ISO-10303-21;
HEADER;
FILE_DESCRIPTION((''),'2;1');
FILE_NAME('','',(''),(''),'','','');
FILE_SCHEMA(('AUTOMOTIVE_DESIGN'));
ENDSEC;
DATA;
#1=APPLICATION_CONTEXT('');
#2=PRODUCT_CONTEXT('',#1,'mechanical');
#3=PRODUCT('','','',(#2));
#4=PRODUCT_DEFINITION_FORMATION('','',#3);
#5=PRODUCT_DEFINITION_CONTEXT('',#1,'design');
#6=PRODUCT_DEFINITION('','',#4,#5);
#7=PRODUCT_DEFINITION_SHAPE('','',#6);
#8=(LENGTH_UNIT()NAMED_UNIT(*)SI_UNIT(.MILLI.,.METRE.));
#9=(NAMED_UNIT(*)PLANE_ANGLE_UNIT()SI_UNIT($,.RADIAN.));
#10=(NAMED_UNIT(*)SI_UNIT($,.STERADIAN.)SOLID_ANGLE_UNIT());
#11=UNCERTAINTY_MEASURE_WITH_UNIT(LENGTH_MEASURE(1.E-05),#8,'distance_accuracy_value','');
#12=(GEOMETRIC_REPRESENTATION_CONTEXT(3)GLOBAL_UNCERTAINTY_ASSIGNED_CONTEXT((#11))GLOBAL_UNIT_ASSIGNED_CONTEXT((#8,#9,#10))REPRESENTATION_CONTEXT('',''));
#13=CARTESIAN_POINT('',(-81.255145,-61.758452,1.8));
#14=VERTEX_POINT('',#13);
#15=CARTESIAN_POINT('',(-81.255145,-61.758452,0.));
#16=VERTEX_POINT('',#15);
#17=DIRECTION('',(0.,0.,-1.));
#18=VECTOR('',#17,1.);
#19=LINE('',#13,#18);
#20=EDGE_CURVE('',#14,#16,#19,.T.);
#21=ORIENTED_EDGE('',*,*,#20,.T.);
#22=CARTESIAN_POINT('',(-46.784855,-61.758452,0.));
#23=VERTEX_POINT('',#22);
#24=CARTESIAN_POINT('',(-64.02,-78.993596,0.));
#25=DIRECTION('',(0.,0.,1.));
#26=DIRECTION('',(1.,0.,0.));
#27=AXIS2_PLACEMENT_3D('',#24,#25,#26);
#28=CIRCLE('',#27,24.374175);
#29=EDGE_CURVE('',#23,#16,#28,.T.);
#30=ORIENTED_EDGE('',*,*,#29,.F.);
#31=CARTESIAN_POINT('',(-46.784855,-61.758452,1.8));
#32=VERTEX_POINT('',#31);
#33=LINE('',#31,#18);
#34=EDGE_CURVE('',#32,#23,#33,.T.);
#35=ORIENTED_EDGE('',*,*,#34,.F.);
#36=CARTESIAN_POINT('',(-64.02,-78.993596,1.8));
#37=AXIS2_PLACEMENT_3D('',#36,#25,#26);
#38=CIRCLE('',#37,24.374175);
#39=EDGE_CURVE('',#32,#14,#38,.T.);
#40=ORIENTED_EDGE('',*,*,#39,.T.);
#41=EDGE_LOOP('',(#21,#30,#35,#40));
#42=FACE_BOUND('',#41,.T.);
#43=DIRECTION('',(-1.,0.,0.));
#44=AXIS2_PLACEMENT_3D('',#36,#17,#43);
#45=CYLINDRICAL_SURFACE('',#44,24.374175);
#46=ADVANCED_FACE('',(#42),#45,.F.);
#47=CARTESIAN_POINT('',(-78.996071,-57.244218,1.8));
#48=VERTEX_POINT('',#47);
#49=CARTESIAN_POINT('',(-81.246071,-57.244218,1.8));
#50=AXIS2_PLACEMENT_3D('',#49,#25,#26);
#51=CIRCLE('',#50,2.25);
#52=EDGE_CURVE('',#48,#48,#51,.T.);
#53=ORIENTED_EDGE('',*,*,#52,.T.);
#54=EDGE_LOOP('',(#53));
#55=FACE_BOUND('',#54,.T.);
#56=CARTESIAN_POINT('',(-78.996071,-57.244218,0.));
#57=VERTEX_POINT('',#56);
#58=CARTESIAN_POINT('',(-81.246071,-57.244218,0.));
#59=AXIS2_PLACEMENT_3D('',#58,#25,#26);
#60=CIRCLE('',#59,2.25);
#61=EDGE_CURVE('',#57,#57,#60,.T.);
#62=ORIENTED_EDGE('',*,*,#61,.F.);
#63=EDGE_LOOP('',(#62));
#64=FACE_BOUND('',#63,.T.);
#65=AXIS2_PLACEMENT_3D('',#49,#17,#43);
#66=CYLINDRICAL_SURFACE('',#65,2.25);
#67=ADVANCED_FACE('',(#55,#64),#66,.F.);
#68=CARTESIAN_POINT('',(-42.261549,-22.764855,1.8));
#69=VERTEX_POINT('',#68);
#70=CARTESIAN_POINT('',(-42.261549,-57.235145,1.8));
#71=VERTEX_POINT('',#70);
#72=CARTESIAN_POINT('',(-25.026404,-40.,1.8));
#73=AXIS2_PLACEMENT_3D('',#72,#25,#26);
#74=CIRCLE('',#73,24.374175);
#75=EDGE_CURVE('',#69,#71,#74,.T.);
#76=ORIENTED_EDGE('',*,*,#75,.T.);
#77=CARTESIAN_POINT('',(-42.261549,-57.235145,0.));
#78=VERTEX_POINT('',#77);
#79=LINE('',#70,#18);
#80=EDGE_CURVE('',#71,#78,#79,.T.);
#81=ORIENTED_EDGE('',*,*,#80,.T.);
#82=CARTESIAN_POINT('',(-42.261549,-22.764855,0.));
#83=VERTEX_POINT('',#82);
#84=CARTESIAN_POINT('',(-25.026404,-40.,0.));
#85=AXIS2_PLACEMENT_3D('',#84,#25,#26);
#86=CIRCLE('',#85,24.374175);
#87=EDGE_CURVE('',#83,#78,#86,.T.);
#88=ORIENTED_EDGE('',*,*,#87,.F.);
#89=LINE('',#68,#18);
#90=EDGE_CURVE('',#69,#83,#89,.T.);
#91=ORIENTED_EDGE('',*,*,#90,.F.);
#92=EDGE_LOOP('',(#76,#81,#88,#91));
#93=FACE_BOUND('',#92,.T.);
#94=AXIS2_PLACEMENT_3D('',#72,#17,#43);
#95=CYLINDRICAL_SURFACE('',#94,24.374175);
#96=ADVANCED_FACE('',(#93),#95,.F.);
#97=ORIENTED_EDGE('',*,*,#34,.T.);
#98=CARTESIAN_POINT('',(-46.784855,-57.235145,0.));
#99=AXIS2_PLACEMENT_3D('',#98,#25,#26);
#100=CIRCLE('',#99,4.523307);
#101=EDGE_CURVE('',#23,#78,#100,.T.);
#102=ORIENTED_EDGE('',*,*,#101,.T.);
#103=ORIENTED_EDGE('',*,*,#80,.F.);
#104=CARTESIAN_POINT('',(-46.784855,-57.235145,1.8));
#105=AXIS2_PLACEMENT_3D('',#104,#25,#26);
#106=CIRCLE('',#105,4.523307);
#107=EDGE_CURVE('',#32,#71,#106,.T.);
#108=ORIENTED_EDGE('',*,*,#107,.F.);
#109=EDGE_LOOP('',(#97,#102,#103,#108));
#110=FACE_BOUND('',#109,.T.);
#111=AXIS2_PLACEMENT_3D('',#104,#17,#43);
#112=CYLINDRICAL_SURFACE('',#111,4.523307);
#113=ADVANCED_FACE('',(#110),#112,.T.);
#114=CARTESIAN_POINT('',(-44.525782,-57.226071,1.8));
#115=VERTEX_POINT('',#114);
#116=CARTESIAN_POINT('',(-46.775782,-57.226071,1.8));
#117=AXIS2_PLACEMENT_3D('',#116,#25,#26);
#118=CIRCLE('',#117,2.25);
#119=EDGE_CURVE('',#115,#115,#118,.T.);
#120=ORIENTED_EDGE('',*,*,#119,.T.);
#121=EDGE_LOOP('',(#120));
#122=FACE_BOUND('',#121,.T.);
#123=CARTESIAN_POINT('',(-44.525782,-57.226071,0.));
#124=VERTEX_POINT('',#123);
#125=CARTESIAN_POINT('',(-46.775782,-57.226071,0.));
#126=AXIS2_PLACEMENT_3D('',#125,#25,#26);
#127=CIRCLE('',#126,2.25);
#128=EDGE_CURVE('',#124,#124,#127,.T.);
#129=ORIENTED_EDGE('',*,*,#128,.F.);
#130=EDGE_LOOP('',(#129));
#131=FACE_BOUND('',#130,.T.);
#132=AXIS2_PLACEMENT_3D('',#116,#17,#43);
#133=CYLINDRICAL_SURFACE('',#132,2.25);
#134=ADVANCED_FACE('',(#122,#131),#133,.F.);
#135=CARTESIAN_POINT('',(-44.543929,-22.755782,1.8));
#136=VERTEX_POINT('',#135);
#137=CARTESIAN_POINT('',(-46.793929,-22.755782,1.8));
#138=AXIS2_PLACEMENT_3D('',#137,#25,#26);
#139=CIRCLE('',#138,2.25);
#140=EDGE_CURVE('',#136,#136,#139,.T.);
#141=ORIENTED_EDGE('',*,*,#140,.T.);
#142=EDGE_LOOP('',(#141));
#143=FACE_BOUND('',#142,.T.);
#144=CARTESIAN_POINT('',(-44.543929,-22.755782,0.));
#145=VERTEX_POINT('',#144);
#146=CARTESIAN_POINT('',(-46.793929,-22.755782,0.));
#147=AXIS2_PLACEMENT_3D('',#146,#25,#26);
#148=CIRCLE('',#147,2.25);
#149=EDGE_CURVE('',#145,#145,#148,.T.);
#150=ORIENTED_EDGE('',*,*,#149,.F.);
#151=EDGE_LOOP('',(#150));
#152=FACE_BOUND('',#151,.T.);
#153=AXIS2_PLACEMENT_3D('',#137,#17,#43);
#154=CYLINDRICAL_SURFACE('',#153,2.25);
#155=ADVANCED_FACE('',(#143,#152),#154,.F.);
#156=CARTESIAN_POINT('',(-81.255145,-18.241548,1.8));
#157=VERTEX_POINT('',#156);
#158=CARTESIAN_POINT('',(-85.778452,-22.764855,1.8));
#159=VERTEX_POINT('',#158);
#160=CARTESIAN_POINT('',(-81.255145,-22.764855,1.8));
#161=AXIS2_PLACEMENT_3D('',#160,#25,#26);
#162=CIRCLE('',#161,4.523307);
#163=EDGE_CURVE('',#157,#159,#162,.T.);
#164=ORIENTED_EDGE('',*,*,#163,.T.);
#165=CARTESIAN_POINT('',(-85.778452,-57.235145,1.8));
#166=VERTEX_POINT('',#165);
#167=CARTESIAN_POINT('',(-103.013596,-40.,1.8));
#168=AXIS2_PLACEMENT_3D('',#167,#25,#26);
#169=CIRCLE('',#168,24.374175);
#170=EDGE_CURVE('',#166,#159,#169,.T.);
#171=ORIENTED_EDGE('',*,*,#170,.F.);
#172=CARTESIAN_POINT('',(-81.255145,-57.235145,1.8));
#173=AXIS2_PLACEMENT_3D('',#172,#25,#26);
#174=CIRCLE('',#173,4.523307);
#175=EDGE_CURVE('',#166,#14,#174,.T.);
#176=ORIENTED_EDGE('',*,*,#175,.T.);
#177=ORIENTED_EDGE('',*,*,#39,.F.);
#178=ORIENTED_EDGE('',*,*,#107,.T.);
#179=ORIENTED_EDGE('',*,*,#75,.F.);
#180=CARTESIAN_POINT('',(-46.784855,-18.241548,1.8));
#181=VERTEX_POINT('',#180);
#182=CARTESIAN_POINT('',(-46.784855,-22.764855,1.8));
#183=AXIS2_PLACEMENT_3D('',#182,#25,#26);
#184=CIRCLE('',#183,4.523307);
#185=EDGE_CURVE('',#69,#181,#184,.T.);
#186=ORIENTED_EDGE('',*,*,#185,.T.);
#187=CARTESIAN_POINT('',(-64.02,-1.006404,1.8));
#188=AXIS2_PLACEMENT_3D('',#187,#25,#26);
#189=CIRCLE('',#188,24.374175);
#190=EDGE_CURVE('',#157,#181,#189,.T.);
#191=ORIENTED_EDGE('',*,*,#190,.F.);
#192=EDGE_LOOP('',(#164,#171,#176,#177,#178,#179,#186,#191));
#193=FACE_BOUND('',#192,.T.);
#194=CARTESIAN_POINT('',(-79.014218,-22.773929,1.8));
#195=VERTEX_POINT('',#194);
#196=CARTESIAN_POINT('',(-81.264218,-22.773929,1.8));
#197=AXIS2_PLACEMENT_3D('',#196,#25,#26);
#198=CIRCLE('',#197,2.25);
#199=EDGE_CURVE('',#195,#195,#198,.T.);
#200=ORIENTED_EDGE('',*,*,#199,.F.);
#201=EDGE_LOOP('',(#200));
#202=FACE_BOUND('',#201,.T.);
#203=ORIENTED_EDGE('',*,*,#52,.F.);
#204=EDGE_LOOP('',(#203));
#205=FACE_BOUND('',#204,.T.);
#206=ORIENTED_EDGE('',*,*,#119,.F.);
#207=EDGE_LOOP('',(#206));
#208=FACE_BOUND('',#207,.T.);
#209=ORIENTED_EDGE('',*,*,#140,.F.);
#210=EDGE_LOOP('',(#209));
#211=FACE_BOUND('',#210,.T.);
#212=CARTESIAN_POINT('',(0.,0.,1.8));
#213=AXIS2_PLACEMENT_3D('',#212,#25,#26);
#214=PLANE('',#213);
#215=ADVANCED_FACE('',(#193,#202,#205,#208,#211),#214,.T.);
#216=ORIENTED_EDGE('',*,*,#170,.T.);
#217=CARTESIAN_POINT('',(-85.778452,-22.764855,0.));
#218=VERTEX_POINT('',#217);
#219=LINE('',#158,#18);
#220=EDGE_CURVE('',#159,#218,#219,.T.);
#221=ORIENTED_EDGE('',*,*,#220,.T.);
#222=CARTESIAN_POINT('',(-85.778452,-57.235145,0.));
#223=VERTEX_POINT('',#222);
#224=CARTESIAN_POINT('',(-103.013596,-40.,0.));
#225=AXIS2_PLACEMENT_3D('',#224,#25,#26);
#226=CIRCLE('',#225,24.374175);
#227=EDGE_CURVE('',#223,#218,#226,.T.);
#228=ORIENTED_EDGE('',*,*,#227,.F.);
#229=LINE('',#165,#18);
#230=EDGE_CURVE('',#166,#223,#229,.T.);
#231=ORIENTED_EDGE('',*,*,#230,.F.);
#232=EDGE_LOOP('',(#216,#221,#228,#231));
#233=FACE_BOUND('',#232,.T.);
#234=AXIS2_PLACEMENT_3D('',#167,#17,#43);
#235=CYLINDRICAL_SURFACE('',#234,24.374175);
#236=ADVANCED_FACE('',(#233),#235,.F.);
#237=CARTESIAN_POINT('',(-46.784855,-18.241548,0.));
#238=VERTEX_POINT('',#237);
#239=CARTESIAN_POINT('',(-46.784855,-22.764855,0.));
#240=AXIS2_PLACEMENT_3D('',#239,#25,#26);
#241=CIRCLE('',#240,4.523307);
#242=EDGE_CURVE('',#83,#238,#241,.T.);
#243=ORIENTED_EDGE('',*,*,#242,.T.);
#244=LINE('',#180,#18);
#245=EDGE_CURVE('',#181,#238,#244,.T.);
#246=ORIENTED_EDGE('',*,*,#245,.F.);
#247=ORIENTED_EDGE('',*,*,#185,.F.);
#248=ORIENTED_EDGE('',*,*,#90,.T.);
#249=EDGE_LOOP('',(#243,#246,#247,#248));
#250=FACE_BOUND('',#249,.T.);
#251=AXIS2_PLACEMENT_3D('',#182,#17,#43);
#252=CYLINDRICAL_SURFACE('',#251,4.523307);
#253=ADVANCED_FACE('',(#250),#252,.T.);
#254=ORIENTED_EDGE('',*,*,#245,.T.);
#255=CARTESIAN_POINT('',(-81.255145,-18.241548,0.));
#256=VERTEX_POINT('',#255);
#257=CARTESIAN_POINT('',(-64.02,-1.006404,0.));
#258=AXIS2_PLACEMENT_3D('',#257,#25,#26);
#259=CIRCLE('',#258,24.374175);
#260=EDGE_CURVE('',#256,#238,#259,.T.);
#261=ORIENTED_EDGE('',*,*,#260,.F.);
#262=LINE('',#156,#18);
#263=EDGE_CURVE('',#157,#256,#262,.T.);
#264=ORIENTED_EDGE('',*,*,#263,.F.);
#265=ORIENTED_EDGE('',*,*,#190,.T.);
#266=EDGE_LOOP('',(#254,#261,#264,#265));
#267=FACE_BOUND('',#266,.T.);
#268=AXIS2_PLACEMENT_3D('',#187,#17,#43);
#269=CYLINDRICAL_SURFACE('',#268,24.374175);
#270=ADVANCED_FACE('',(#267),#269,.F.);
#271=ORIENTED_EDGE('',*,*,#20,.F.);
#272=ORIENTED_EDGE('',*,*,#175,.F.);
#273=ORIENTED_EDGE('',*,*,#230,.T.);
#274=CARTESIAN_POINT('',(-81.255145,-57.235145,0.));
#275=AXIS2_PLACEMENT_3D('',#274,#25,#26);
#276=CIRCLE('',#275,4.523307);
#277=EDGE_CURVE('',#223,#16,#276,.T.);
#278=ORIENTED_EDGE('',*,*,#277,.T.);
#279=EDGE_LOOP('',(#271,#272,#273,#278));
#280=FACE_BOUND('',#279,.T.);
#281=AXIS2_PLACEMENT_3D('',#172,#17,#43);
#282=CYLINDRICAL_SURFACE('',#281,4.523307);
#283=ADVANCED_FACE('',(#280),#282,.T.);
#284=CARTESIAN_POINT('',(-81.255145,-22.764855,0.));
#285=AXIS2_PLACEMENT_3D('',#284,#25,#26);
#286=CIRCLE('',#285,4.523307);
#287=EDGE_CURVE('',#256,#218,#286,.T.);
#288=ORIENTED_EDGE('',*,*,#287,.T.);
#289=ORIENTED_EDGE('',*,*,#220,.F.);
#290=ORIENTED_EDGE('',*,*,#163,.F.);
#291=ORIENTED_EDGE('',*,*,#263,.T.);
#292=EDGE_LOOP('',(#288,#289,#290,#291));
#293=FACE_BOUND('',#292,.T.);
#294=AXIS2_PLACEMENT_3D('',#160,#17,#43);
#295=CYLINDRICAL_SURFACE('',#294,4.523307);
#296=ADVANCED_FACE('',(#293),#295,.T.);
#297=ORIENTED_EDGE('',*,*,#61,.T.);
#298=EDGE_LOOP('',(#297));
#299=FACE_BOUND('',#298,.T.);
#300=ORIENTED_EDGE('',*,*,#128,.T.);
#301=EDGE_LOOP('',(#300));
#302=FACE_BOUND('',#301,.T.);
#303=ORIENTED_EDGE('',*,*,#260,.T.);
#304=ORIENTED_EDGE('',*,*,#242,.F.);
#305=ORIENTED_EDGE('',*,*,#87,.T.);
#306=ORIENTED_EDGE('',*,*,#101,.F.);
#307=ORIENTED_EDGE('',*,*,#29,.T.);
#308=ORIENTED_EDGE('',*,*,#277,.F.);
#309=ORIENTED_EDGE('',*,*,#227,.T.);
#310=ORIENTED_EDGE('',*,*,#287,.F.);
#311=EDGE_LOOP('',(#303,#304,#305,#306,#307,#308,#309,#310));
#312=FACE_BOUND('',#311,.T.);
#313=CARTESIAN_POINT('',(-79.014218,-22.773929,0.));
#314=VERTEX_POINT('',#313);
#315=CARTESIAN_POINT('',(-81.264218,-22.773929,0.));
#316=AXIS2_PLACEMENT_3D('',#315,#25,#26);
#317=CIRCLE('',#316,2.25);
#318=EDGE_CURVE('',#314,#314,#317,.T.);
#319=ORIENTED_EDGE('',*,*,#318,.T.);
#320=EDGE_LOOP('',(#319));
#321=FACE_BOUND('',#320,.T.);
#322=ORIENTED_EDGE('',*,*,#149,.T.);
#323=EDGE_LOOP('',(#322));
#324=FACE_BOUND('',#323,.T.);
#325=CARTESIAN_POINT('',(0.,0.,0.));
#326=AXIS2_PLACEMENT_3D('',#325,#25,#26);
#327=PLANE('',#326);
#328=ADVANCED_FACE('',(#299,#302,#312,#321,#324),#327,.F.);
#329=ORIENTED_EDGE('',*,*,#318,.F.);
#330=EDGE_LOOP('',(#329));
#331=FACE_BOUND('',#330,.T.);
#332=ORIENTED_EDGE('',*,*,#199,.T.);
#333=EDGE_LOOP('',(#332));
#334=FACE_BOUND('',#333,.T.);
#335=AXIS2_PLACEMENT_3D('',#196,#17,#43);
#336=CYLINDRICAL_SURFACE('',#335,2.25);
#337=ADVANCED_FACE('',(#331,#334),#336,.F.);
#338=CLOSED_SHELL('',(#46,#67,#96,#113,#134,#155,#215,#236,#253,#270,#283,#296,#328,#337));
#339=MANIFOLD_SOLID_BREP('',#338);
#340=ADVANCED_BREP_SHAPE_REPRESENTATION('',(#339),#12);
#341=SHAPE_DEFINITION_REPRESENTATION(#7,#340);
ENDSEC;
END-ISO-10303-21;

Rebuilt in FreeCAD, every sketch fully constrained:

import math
import FreeCAD as App
import Part
import Sketcher

doc = App.newDocument("Part")
body = doc.addObject("PartDesign::Body", "Body")

sketch1 = body.newObject("Sketcher::SketchObject", "Sketch")
sketch1.AttachmentSupport = (doc.getObject("XY_Plane"), [""])
sketch1.MapMode = "FlatFace"
sketch1.addGeometry([
    Part.ArcOfCircle(Part.Circle(App.Vector(-64.02, -1.006404, 0), App.Vector(0, 0, 1), 24.374175), math.radians(-135), math.radians(-45)),
    Part.ArcOfCircle(Part.Circle(App.Vector(-81.255145, -22.764855, 0), App.Vector(0, 0, 1), 4.523307), math.radians(90), math.radians(180)),
    Part.ArcOfCircle(Part.Circle(App.Vector(-103.013596, -40, 0), App.Vector(0, 0, 1), 24.374175), math.radians(-45), math.radians(45)),
    Part.ArcOfCircle(Part.Circle(App.Vector(-81.255145, -57.235145, 0), App.Vector(0, 0, 1), 4.523307), math.radians(180), math.radians(270)),
    Part.ArcOfCircle(Part.Circle(App.Vector(-64.02, -78.993596, 0), App.Vector(0, 0, 1), 24.374175), math.radians(45), math.radians(135)),
    Part.ArcOfCircle(Part.Circle(App.Vector(-46.784855, -57.235145, 0), App.Vector(0, 0, 1), 4.523307), math.radians(-90), math.radians(0)),
    Part.ArcOfCircle(Part.Circle(App.Vector(-25.026404, -40, 0), App.Vector(0, 0, 1), 24.374175), math.radians(135), math.radians(225)),
    Part.ArcOfCircle(Part.Circle(App.Vector(-46.784855, -22.764855, 0), App.Vector(0, 0, 1), 4.523307), math.radians(0), math.radians(90)),
    Part.Circle(App.Vector(-46.775782, -57.226071, 0), App.Vector(0, 0, 1), 2.25),
    Part.Circle(App.Vector(-81.246071, -57.244218, 0), App.Vector(0, 0, 1), 2.25),
    Part.Circle(App.Vector(-46.793929, -22.755782, 0), App.Vector(0, 0, 1), 2.25),
    Part.Circle(App.Vector(-81.264218, -22.773929, 0), App.Vector(0, 0, 1), 2.25),
], False)
sketch1.addConstraint([
    Sketcher.Constraint("Coincident", 0, 1, 1, 1),
    Sketcher.Constraint("Coincident", 1, 2, 2, 2),
    Sketcher.Constraint("Coincident", 2, 1, 3, 1),
    Sketcher.Constraint("Coincident", 3, 2, 4, 2),
    Sketcher.Constraint("Coincident", 4, 1, 5, 1),
    Sketcher.Constraint("Coincident", 5, 2, 6, 2),
    Sketcher.Constraint("Coincident", 6, 1, 7, 1),
    Sketcher.Constraint("Coincident", 7, 2, 0, 2),
    Sketcher.Constraint("Equal", 0, 2),
    Sketcher.Constraint("Equal", 1, 3),
    Sketcher.Constraint("Equal", 2, 4),
    Sketcher.Constraint("Equal", 3, 5),
    Sketcher.Constraint("Equal", 4, 6),
    Sketcher.Constraint("Equal", 5, 7),
    Sketcher.Constraint("Equal", 8, 9),
    Sketcher.Constraint("Equal", 9, 10),
    Sketcher.Constraint("Equal", 10, 11),
    Sketcher.Constraint("Horizontal", 3, 3, 5, 3),
    Sketcher.Constraint("Horizontal", 2, 3, 6, 3),
    Sketcher.Constraint("Horizontal", 1, 3, 7, 3),
    Sketcher.Constraint("Horizontal", 7, 3, 1, 2),
    Sketcher.Constraint("Horizontal", 5, 3, 2, 1),
    Sketcher.Constraint("Horizontal", 2, 1, 5, 2),
    Sketcher.Constraint("Horizontal", 1, 2, 6, 1),
    Sketcher.Constraint("Vertical", 1, 3, 3, 3),
    Sketcher.Constraint("Vertical", 0, 3, 4, 3),
    Sketcher.Constraint("Vertical", 3, 3, 0, 1),
    Sketcher.Constraint("Vertical", 0, 1, 3, 2),
    Sketcher.Constraint("Vertical", 7, 3, 4, 1),
    Sketcher.Constraint("Diameter", 8, 4.5),
    Sketcher.Constraint("DistanceY", 2, 3, -1, 1, 40.0),
    Sketcher.Constraint("DistanceX", 0, 3, -1, 1, 64.02),
    Sketcher.Constraint("Radius", 0, 24.374175),
    Sketcher.Constraint("Radius", 1, 4.523307),
    Sketcher.Constraint("DistanceX", 8, 3, -1, 1, 46.775782),
    Sketcher.Constraint("DistanceY", 8, 3, -1, 1, 57.226071),
    Sketcher.Constraint("DistanceX", 9, 3, -1, 1, 81.246071),
    Sketcher.Constraint("DistanceY", 9, 3, -1, 1, 57.244218),
    Sketcher.Constraint("DistanceX", 10, 3, -1, 1, 46.793929),
    Sketcher.Constraint("DistanceY", 10, 3, -1, 1, 22.755782),
    Sketcher.Constraint("DistanceX", 11, 3, -1, 1, 81.264218),
    Sketcher.Constraint("DistanceY", 11, 3, -1, 1, 22.773929),
    Sketcher.Constraint("DistanceY", 0, 1, -1, 1, 18.241548),
    Sketcher.Constraint("DistanceX", 1, 2, -1, 1, 85.778452),
])
pad1 = body.newObject("PartDesign::Pad", "Pad")
pad1.Profile = sketch1
pad1.Length = 1.8

doc.recompute()
